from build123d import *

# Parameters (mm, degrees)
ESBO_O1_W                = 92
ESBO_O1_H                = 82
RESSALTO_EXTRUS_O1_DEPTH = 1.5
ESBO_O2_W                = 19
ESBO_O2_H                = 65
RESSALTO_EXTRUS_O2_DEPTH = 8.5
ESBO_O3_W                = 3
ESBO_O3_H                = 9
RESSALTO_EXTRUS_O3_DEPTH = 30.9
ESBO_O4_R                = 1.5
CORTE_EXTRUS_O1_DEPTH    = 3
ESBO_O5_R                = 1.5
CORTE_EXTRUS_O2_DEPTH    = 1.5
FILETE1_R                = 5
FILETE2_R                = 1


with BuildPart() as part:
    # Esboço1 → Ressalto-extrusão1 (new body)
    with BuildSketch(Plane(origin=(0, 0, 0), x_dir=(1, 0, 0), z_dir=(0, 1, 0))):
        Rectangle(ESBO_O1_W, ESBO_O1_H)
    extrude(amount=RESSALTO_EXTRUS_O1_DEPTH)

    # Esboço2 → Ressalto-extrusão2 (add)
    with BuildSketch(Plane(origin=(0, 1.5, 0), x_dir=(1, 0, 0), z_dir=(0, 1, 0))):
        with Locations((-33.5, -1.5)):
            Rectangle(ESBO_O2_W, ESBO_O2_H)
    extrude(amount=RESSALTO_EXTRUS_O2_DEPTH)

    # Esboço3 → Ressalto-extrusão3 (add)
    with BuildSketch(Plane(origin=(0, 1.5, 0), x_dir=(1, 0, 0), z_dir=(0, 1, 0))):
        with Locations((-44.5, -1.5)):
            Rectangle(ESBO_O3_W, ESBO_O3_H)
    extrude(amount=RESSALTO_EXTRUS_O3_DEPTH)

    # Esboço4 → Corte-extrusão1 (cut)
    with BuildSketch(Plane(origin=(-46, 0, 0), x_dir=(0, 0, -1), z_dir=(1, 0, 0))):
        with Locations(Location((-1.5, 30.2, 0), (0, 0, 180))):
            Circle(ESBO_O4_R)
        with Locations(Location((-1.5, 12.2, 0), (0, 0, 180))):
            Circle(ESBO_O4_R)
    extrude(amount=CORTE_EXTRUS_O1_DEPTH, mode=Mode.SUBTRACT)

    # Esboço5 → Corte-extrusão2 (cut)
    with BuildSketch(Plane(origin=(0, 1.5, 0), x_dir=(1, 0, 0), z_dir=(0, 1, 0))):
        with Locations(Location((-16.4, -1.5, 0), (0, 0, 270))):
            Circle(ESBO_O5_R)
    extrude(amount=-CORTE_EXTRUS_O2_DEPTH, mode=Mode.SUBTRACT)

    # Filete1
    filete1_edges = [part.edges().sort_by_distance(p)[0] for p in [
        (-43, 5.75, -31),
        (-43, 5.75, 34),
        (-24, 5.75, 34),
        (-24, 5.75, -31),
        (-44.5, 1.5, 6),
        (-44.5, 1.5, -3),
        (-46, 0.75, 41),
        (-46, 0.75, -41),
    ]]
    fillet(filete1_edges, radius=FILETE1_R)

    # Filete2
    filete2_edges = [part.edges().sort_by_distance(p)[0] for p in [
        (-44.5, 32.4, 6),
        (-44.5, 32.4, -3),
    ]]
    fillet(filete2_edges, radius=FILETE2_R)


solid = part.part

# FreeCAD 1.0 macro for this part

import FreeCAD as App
import Part
import Sketcher


def edges_at(feature, points):
    """Names of the edges that pass closest to the given points."""
    edges = feature.Shape.Edges
    near = lambda p: min(range(len(edges)), key=lambda i: edges[i].distToShape(Part.Vertex(*p))[0])
    return sorted({f"Edge{near(p) + 1}" for p in points})


def add_polygon(sketch, points):
    """Adds a closed chain of lines whose ends are joined by coincident constraints."""
    first, n = sketch.GeometryCount, len(points)
    for a, b in zip(points, points[1:] + points[:1]):
        sketch.addGeometry(Part.LineSegment(App.Vector(*a, 0), App.Vector(*b, 0)), False)
    for i in range(n):
        sketch.addConstraint(Sketcher.Constraint("Coincident", first + i, 2, first + (i + 1) % n, 1))

doc = App.newDocument("Part")
body = doc.addObject("PartDesign::Body", "Body")

# Sketch on XZ plane
sketch1 = body.newObject("Sketcher::SketchObject", "Sketch")
sketch1.AttachmentSupport = (doc.getObject("XZ_Plane"), [""])
sketch1.MapMode = "FlatFace"
add_polygon(sketch1, [(-46, -41), (-46, 41), (46, 41), (46, -41)])  # lines 0-3
sketch1.addConstraint([
    Sketcher.Constraint("Vertical", 0),
    Sketcher.Constraint("Horizontal", 1),
    Sketcher.Constraint("Vertical", 2),
    Sketcher.Constraint("Horizontal", 3),
    Sketcher.Constraint("Symmetric", 0, 2, 2, 2, -1, 1),
    Sketcher.Constraint("DistanceX", 1, 1, 1, 2, 92.0),
    Sketcher.Constraint("DistanceY", 0, 1, 0, 2, 82.0),
])
pad1 = body.newObject("PartDesign::Pad", "Pad")
pad1.Profile = sketch1
pad1.Length = 1.5
pad1.Reversed = True

# Sketch on XZ plane
sketch2 = body.newObject("Sketcher::SketchObject", "Sketch001")
sketch2.AttachmentSupport = (doc.getObject("XZ_Plane"), [""])
sketch2.MapMode = "FlatFace"
sketch2.AttachmentOffset = App.Placement(App.Vector(0, 0, -1.5), App.Rotation())
add_polygon(sketch2, [(-43, -31), (-43, 34), (-24, 34), (-24, -31)])  # lines 0-3
sketch2.addConstraint([
    Sketcher.Constraint("Vertical", 0),
    Sketcher.Constraint("Horizontal", 1),
    Sketcher.Constraint("Vertical", 2),
    Sketcher.Constraint("Horizontal", 3),
    Sketcher.Constraint("DistanceX", 1, 1, 1, 2, 19.0),
    Sketcher.Constraint("DistanceY", 0, 1, 0, 2, 65.0),
    Sketcher.Constraint("DistanceX", 0, 2, -1, 1, 43.0),
    Sketcher.Constraint("DistanceY", -1, 1, 0, 2, 34.0),
])
pad2 = body.newObject("PartDesign::Pad", "Pad001")
pad2.Profile = sketch2
pad2.Length = 8.5
pad2.Reversed = True

# Sketch on XZ plane
sketch3 = body.newObject("Sketcher::SketchObject", "Sketch002")
sketch3.AttachmentSupport = (doc.getObject("XZ_Plane"), [""])
sketch3.MapMode = "FlatFace"
sketch3.AttachmentOffset = App.Placement(App.Vector(0, 0, -1.5), App.Rotation())
add_polygon(sketch3, [(-46, -3), (-46, 6), (-43, 6), (-43, -3)])  # lines 0-3
sketch3.addConstraint([
    Sketcher.Constraint("Vertical", 0),
    Sketcher.Constraint("Horizontal", 1),
    Sketcher.Constraint("Vertical", 2),
    Sketcher.Constraint("Horizontal", 3),
    Sketcher.Constraint("DistanceX", 1, 1, 1, 2, 3.0),
    Sketcher.Constraint("DistanceY", 0, 1, 0, 2, 9.0),
    Sketcher.Constraint("DistanceX", 0, 2, -1, 1, 46.0),
    Sketcher.Constraint("DistanceY", -1, 1, 0, 2, 6.0),
])
pad3 = body.newObject("PartDesign::Pad", "Pad002")
pad3.Profile = sketch3
pad3.Length = 30.9
pad3.Reversed = True

# Sketch on YZ plane
sketch4 = body.newObject("Sketcher::SketchObject", "Sketch003")
sketch4.AttachmentSupport = (doc.getObject("YZ_Plane"), [""])
sketch4.MapMode = "FlatFace"
sketch4.AttachmentOffset = App.Placement(App.Vector(0, 0, -46), App.Rotation())
sketch4.addGeometry([
    Part.Circle(App.Vector(30.2, 1.5, 0), App.Vector(0, 0, 1), 1.5),
    Part.Circle(App.Vector(12.2, 1.5, 0), App.Vector(0, 0, 1), 1.5),
], False)
sketch4.addConstraint([
    Sketcher.Constraint("Equal", 0, 1),
    Sketcher.Constraint("Horizontal", 0, 3, 1, 3),
    Sketcher.Constraint("Diameter", 0, 3.0),
    Sketcher.Constraint("DistanceX", 1, 3, 0, 3, 18.0),
    Sketcher.Constraint("DistanceX", -1, 1, 0, 3, 30.2),
    Sketcher.Constraint("DistanceY", -1, 1, 0, 3, 1.5),
])
pocket1 = body.newObject("PartDesign::Pocket", "Pocket")
pocket1.Profile = sketch4
pocket1.Length = 3
pocket1.Reversed = True

# Sketch on XZ plane
sketch5 = body.newObject("Sketcher::SketchObject", "Sketch004")
sketch5.AttachmentSupport = (doc.getObject("XZ_Plane"), [""])
sketch5.MapMode = "FlatFace"
sketch5.AttachmentOffset = App.Placement(App.Vector(0, 0, -1.5), App.Rotation())
sketch5.addGeometry(Part.Circle(App.Vector(-16.4, 1.5, 0), App.Vector(0, 0, 1), 1.5), False)
sketch5.addConstraint([
    Sketcher.Constraint("Diameter", 0, 3.0),
    Sketcher.Constraint("DistanceX", 0, 3, -1, 1, 16.4),
    Sketcher.Constraint("DistanceY", -1, 1, 0, 3, 1.5),
])
pocket2 = body.newObject("PartDesign::Pocket", "Pocket001")
pocket2.Profile = sketch5
pocket2.Length = 1.5
pocket2.Reversed = True
doc.recompute()

fillet = body.newObject("PartDesign::Fillet", "Fillet")
fillet.Base = (pocket2, edges_at(pocket2, [
    (-43, 5.75, -31),
    (-43, 5.75, 34),
    (-24, 5.75, 34),
    (-24, 5.75, -31),
    (-44.5, 1.5, 6),
    (-44.5, 1.5, -3),
    (-46, 0.75, 41),
    (-46, 0.75, -41),
]))
fillet.Radius = 5
doc.recompute()

fillet2 = body.newObject("PartDesign::Fillet", "Fillet001")
fillet2.Base = (fillet, edges_at(fillet, [(-44.5, 32.4, 6), (-44.5, 32.4, -3)]))
fillet2.Radius = 1

doc.recompute()
